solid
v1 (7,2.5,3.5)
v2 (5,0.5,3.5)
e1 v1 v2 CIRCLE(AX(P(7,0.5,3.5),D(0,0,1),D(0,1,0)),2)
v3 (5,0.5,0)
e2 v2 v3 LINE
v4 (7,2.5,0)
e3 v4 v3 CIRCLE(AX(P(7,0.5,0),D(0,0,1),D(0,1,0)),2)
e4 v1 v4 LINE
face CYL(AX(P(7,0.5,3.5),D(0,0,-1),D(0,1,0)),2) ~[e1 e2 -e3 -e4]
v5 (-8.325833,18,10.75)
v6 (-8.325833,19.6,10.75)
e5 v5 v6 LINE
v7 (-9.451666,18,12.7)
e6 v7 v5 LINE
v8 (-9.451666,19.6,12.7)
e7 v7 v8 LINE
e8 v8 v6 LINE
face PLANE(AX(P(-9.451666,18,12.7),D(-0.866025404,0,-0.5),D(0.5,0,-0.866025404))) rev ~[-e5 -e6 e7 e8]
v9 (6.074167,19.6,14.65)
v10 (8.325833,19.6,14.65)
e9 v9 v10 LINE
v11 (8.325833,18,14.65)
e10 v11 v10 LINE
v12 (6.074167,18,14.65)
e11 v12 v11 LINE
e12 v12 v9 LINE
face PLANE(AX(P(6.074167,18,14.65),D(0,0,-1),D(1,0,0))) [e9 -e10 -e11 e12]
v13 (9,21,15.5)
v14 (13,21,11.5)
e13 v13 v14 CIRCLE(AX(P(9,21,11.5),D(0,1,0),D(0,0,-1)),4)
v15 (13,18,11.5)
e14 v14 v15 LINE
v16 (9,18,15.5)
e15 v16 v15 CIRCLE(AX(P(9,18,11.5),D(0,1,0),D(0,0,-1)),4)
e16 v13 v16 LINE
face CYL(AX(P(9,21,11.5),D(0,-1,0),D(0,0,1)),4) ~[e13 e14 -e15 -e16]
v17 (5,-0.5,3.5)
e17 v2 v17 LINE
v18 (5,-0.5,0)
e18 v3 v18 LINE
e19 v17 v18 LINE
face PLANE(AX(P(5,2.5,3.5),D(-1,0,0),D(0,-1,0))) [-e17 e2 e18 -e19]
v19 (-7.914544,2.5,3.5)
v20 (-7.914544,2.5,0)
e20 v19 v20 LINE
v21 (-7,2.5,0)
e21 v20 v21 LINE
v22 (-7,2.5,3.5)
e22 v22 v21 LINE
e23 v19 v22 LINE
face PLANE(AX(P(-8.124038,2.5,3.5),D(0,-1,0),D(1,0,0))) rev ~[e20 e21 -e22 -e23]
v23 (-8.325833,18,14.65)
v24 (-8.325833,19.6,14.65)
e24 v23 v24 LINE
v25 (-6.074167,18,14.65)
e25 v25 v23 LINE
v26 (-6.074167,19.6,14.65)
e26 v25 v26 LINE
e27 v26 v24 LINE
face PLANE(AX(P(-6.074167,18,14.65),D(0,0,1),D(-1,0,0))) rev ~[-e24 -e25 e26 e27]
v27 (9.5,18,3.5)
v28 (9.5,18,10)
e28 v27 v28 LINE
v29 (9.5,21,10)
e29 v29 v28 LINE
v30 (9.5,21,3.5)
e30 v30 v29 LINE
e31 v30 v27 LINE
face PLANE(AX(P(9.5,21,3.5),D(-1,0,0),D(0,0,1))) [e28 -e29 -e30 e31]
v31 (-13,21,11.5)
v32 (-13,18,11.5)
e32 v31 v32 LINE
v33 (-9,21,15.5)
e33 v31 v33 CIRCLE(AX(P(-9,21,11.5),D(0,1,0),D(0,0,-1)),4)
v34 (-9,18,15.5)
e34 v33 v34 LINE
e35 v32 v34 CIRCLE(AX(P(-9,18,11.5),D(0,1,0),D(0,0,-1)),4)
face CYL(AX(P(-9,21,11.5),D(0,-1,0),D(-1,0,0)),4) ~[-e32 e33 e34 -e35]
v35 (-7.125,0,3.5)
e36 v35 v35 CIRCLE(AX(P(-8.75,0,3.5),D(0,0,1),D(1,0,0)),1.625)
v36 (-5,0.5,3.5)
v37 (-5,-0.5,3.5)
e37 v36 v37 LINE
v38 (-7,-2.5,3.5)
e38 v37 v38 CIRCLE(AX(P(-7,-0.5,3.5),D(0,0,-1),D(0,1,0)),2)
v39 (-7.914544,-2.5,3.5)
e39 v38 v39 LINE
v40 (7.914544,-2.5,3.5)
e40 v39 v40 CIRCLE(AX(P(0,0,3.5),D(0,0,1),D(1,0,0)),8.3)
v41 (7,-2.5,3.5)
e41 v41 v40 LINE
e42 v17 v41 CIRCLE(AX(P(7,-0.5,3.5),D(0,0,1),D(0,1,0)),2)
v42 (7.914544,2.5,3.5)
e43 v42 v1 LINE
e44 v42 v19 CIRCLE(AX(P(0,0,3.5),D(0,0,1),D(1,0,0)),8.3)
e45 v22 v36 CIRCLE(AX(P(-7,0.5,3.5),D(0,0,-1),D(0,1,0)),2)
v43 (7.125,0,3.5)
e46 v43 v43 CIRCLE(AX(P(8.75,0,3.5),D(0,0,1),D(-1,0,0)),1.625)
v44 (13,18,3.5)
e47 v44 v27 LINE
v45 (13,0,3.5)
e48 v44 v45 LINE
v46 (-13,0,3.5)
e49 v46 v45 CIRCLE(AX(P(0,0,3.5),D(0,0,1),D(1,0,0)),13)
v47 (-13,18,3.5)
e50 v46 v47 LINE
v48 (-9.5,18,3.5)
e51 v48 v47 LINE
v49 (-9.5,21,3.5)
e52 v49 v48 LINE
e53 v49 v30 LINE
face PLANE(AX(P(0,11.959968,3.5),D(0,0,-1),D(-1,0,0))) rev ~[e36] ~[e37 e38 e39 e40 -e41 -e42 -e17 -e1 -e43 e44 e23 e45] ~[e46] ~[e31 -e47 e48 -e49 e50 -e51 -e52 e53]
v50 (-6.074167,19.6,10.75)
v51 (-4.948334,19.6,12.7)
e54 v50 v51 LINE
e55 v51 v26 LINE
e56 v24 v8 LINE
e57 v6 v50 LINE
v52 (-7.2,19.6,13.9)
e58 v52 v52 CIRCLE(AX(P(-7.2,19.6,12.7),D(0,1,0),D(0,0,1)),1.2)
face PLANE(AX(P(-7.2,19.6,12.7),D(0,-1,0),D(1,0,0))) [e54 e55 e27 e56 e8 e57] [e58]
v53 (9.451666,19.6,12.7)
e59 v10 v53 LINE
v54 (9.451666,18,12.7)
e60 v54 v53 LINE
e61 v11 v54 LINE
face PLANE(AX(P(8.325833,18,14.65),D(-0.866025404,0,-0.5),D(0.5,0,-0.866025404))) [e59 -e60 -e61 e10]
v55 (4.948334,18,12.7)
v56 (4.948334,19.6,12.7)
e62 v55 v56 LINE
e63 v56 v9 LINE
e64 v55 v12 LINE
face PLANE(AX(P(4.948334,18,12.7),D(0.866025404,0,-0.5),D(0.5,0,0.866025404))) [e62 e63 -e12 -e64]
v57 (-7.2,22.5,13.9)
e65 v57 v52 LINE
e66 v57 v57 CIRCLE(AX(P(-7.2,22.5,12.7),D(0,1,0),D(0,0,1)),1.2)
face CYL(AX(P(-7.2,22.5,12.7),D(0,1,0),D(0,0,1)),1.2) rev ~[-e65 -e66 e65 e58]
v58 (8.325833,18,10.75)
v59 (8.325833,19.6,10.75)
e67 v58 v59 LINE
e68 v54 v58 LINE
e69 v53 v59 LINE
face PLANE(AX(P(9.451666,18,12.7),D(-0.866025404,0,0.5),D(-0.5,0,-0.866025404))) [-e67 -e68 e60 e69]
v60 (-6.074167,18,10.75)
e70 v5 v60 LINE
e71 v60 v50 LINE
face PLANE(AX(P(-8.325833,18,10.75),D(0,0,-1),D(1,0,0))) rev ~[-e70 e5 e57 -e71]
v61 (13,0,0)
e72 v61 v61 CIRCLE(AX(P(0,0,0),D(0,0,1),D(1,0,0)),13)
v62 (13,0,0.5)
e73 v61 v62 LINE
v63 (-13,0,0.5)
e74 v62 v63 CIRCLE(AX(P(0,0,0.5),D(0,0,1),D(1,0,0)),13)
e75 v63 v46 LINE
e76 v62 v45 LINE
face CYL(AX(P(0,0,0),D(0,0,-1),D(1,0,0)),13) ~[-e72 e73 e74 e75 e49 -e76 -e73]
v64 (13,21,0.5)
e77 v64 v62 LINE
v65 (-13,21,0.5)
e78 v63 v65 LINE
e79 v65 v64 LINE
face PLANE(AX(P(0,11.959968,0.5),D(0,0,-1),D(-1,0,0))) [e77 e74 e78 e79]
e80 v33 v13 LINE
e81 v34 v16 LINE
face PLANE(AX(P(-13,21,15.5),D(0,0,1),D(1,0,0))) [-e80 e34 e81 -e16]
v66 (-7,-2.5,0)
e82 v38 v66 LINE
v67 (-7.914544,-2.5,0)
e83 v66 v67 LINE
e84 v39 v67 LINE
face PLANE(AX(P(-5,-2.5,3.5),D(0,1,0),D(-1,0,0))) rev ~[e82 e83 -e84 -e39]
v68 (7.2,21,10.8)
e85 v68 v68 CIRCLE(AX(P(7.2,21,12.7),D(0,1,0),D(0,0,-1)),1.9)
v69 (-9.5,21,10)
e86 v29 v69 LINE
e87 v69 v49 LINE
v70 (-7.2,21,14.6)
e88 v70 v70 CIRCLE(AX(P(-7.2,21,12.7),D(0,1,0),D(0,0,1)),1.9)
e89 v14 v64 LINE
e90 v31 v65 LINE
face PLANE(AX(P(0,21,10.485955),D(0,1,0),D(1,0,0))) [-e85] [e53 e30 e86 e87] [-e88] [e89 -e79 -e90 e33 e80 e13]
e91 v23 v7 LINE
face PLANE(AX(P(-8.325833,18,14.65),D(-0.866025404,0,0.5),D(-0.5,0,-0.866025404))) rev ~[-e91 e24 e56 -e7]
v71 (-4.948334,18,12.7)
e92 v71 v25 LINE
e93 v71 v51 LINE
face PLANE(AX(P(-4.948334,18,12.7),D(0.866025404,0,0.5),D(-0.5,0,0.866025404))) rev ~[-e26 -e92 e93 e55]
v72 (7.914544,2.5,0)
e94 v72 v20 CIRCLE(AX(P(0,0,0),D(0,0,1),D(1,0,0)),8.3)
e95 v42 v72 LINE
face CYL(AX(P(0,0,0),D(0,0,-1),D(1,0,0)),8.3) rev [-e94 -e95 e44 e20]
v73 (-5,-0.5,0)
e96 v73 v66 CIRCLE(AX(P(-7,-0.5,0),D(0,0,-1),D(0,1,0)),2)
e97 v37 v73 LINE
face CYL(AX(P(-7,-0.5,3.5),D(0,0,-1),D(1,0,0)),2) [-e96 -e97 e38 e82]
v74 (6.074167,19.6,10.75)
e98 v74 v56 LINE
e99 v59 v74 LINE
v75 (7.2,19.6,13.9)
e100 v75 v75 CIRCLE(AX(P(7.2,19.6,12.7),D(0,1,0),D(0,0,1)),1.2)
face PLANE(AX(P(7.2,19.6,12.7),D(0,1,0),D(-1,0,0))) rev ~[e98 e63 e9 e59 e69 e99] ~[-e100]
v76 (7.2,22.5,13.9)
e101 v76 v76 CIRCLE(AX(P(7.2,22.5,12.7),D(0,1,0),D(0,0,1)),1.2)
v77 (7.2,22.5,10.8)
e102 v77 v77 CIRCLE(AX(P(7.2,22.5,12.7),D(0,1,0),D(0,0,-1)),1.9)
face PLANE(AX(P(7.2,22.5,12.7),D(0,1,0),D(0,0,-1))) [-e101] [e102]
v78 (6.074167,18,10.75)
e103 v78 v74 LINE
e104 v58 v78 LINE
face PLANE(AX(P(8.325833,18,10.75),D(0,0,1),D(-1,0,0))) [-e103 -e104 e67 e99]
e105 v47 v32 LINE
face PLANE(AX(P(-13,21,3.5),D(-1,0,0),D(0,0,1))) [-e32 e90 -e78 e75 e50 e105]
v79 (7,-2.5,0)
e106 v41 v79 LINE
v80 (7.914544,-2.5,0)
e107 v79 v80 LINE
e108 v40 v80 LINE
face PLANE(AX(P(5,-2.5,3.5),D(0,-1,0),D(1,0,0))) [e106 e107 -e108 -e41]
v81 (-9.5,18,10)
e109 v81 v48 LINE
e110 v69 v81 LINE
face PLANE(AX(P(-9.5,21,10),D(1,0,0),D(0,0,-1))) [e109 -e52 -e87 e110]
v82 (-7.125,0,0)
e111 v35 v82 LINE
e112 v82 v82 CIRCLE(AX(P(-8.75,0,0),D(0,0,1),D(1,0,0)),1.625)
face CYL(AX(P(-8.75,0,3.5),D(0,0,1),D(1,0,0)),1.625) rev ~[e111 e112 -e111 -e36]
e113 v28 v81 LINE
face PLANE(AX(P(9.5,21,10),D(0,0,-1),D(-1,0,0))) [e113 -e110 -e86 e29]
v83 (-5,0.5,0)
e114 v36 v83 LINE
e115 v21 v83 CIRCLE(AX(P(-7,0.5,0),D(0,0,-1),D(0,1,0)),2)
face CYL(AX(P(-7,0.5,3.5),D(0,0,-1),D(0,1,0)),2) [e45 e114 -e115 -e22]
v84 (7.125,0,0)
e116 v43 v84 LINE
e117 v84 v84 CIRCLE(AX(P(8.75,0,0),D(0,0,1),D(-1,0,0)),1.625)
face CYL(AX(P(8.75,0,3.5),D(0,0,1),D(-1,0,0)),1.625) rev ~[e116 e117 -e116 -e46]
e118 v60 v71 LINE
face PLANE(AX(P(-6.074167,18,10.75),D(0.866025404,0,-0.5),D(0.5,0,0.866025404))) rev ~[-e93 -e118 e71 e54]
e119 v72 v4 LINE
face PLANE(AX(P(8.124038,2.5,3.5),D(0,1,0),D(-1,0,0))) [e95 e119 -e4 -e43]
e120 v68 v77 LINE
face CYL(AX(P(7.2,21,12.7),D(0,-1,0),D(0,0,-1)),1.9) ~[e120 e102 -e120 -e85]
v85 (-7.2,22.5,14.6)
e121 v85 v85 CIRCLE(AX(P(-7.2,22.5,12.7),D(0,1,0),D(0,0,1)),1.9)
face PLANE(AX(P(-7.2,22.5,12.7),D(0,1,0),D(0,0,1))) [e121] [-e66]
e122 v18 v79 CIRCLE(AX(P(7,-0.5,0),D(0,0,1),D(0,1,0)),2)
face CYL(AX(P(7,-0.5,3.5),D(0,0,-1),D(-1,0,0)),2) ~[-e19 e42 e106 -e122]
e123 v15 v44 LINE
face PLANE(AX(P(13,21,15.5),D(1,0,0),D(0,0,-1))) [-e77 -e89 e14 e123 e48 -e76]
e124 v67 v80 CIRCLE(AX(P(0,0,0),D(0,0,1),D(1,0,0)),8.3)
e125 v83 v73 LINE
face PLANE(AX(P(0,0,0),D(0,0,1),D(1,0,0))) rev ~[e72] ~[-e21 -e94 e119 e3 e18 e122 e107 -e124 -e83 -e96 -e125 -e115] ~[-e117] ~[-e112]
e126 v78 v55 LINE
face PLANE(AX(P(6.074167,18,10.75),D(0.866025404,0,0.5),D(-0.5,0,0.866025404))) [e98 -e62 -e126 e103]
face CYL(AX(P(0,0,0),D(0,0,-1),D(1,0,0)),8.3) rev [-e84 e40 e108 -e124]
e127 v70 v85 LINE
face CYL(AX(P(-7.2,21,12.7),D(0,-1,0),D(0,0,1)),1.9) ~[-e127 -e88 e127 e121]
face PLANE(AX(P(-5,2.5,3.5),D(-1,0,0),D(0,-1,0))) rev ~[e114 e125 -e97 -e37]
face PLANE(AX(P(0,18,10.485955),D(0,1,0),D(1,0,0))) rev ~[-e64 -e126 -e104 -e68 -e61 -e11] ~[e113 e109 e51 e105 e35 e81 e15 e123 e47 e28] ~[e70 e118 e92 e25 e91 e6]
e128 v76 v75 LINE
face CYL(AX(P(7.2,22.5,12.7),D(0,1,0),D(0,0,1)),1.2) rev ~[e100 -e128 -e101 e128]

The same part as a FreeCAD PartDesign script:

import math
import FreeCAD as App
import Part
import Sketcher
from FreeCAD import Vector
Q = App.Units.Quantity


def edges_at(feature, points):
    """Names of the edges that pass closest to the given points."""
    edges = feature.Shape.Edges
    near = lambda p: min(range(len(edges)), key=lambda i: edges[i].distToShape(Part.Vertex(*p))[0])
    return sorted({f"Edge{near(p) + 1}" for p in points})


def add_polygon(sketch, points):
    """Adds a closed chain of lines whose ends are joined by coincident constraints."""
    first, n = sketch.GeometryCount, len(points)
    for a, b in zip(points, points[1:] + points[:1]):
        sketch.addGeometry(Part.LineSegment(App.Vector(*a, 0), App.Vector(*b, 0)), False)
    for i in range(n):
        sketch.addConstraint(Sketcher.Constraint("Coincident", first + i, 2, first + (i + 1) % n, 1))

doc = App.newDocument("Part")
body = doc.addObject("PartDesign::Body", "Body")

# Sketch on XY plane
sketch1 = body.newObject("Sketcher::SketchObject", "Sketch")
sketch1.AttachmentSupport = (doc.getObject("XY_Plane"), [""])
sketch1.MapMode = "FlatFace"
sketch1.addGeometry(Part.Circle(Vector(0, 0, 0), Vector(0, 0, 1), 13), False)
sketch1.addGeometry(Part.Circle(Vector(0, 0, 0), Vector(0, 0, 1), 8.3), False)
sketch1.addConstraint(Sketcher.Constraint("Coincident", 0, 3, -1, 1))
sketch1.addConstraint(Sketcher.Constraint("Coincident", 1, 3, -1, 1))
sketch1.addConstraint(Sketcher.Constraint("Diameter", 0, Q("26 mm")))
sketch1.addConstraint(Sketcher.Constraint("Diameter", 1, Q("16.6 mm")))
pad1 = body.newObject("PartDesign::Pad", "Pad")
pad1.Profile = sketch1
pad1.Length = 3.5

# Sketch on XY plane
sketch2 = body.newObject("Sketcher::SketchObject", "Sketch001")
sketch2.AttachmentSupport = (doc.getObject("XY_Plane"), [""])
sketch2.MapMode = "FlatFace"
sketch2.AttachmentOffset = App.Placement(Vector(0, 0, 3.5), App.Rotation())
sketch2.addGeometry(Part.LineSegment(Vector(-5, 2.5, 0), Vector(-8.124038, 2.5, 0)), False)
sketch2.addGeometry(Part.ArcOfCircle(Part.Circle(Vector(0, 0, 0), Vector(0, 0, 1), 8.5), math.radians(162.895365), math.radians(197.104635)), False)
sketch2.addGeometry(Part.LineSegment(Vector(-8.124038, -2.5, 0), Vector(-5, -2.5, 0)), False)
sketch2.addGeometry(Part.LineSegment(Vector(-5, -2.5, 0), Vector(-5, 2.5, 0)), False)
sketch2.addGeometry(Part.LineSegment(Vector(5, 2.5, 0), Vector(5, -2.5, 0)), False)
sketch2.addGeometry(Part.LineSegment(Vector(5, -2.5, 0), Vector(8.124038, -2.5, 0)), False)
sketch2.addGeometry(Part.ArcOfCircle(Part.Circle(Vector(0, 0, 0), Vector(0, 0, 1), 8.5), math.radians(-17.104635), math.radians(17.104635)), False)
sketch2.addGeometry(Part.LineSegment(Vector(8.124038, 2.5, 0), Vector(5, 2.5, 0)), False)
sketch2.addConstraint(Sketcher.Constraint("Coincident", 0, 2, 1, 1))
sketch2.addConstraint(Sketcher.Constraint("Coincident", 1, 2, 2, 1))
sketch2.addConstraint(Sketcher.Constraint("Coincident", 2, 2, 3, 1))
sketch2.addConstraint(Sketcher.Constraint("Coincident", 3, 2, 0, 1))
sketch2.addConstraint(Sketcher.Constraint("Coincident", 4, 2, 5, 1))
sketch2.addConstraint(Sketcher.Constraint("Coincident", 5, 2, 6, 1))
sketch2.addConstraint(Sketcher.Constraint("Coincident", 6, 2, 7, 1))
sketch2.addConstraint(Sketcher.Constraint("Coincident", 7, 2, 4, 1))
sketch2.addConstraint(Sketcher.Constraint("Horizontal", 0))
sketch2.addConstraint(Sketcher.Constraint("Horizontal", 2))
sketch2.addConstraint(Sketcher.Constraint("Vertical", 3))
sketch2.addConstraint(Sketcher.Constraint("Vertical", 4))
sketch2.addConstraint(Sketcher.Constraint("Horizontal", 5))
sketch2.addConstraint(Sketcher.Constraint("Horizontal", 7))
sketch2.addConstraint(Sketcher.Constraint("Coincident", 1, 3, -1, 1))
sketch2.addConstraint(Sketcher.Constraint("Coincident", 6, 3, -1, 1))
sketch2.addConstraint(Sketcher.Constraint("Equal", 1, 6))
sketch2.addConstraint(Sketcher.Constraint("Symmetric", 3, 2, 4, 2, -1, 1))
sketch2.addConstraint(Sketcher.Constraint("Horizontal", 2, 2, 4, 2))
sketch2.addConstraint(Sketcher.Constraint("Horizontal", 3, 2, 6, 2))
sketch2.addConstraint(Sketcher.Constraint("Radius", 1, Q("8.5 mm")))
sketch2.addConstraint(Sketcher.Constraint("DistanceY", 3, 1, 3, 2, Q("5 mm")))
sketch2.addConstraint(Sketcher.Constraint("DistanceX", 2, 2, -1, 1, Q("5 mm")))
pad2 = body.newObject("PartDesign::Pad", "Pad001")
pad2.Profile = sketch2
pad2.Length = 3.5
pad2.Reversed = True

# Sketch on XY plane
sketch3 = body.newObject("Sketcher::SketchObject", "Sketch002")
sketch3.AttachmentSupport = (doc.getObject("XY_Plane"), [""])
sketch3.MapMode = "FlatFace"
sketch3.AttachmentOffset = App.Placement(Vector(0, 0, 3.5), App.Rotation())
sketch3.addGeometry(Part.Circle(Vector(-8.75, 0, 0), Vector(0, 0, 1), 1.625), False)
sketch3.addGeometry(Part.Circle(Vector(8.75, 0, 0), Vector(0, 0, 1), 1.625), False)
sketch3.addConstraint(Sketcher.Constraint("Equal", 0, 1))
sketch3.addConstraint(Sketcher.Constraint("Symmetric", 0, 3, 1, 3, -1, 1))
sketch3.addConstraint(Sketcher.Constraint("PointOnObject", 0, 3, -1))
sketch3.addConstraint(Sketcher.Constraint("Diameter", 0, Q("3.25 mm")))
sketch3.addConstraint(Sketcher.Constraint("DistanceX", 0, 3, 1, 3, Q("17.5 mm")))
pocket1 = body.newObject("PartDesign::Pocket", "Pocket")
pocket1.Profile = sketch3
pocket1.Type = "ThroughAll"
doc.recompute()

fillet = body.newObject("PartDesign::Fillet", "Fillet")
fillet.Base = (pocket1, edges_at(pocket1, [
    (-5, 2.5, 1.75),
    (-5, -2.5, 1.75),
    (5, -2.5, 1.75),
    (5, 2.5, 1.75),
]))
fillet.Radius = 2

# Sketch on XY plane
sketch4 = body.newObject("Sketcher::SketchObject", "Sketch003")
sketch4.AttachmentSupport = (doc.getObject("XY_Plane"), [""])
sketch4.MapMode = "FlatFace"
sketch4.AttachmentOffset = App.Placement(Vector(0, 0, 0.5), App.Rotation())
sketch4.addGeometry(Part.LineSegment(Vector(-13, 21, 0), Vector(-13, 0, 0)), False)
sketch4.addGeometry(Part.ArcOfCircle(Part.Circle(Vector(0, 0, 0), Vector(0, 0, 1), 13), math.radians(0), math.radians(180)), False)
sketch4.addGeometry(Part.LineSegment(Vector(13, 0, 0), Vector(13, 21, 0)), False)
sketch4.addGeometry(Part.LineSegment(Vector(13, 21, 0), Vector(-13, 21, 0)), False)
sketch4.addConstraint(Sketcher.Constraint("Tangent", 0, 2, 1, 2))
sketch4.addConstraint(Sketcher.Constraint("Tangent", 1, 1, 2, 1))
sketch4.addConstraint(Sketcher.Constraint("Coincident", 2, 2, 3, 1))
sketch4.addConstraint(Sketcher.Constraint("Coincident", 3, 2, 0, 1))
sketch4.addConstraint(Sketcher.Constraint("Vertical", 0))
sketch4.addConstraint(Sketcher.Constraint("Vertical", 2))
sketch4.addConstraint(Sketcher.Constraint("Horizontal", 3))
sketch4.addConstraint(Sketcher.Constraint("Coincident", 1, 3, -1, 1))
sketch4.addConstraint(Sketcher.Constraint("Radius", 1, Q("13 mm")))
sketch4.addConstraint(Sketcher.Constraint("DistanceY", 0, 2, 0, 1, Q("21 mm")))
pad3 = body.newObject("PartDesign::Pad", "Pad002")
pad3.Profile = sketch4
pad3.Length = 3

# Sketch on XZ plane
sketch5 = body.newObject("Sketcher::SketchObject", "Sketch004")
sketch5.AttachmentSupport = (doc.getObject("XZ_Plane"), [""])
sketch5.MapMode = "FlatFace"
sketch5.AttachmentOffset = App.Placement(Vector(0, 0, -21), App.Rotation())
add_polygon(sketch5, [(-13, 3.5), (-13, 15.5), (13, 15.5), (13, 3.5), (9.5, 3.5), (9.5, 10), (-9.5, 10), (-9.5, 3.5)])  # lines 0-7
sketch5.addConstraint(Sketcher.Constraint("Vertical", 0))
sketch5.addConstraint(Sketcher.Constraint("Horizontal", 1))
sketch5.addConstraint(Sketcher.Constraint("Vertical", 2))
sketch5.addConstraint(Sketcher.Constraint("Horizontal", 3))
sketch5.addConstraint(Sketcher.Constraint("Vertical", 4))
sketch5.addConstraint(Sketcher.Constraint("Horizontal", 5))
sketch5.addConstraint(Sketcher.Constraint("Vertical", 6))
sketch5.addConstraint(Sketcher.Constraint("Horizontal", 7))
sketch5.addConstraint(Sketcher.Constraint("Symmetric", 3, 2, 6, 2, -2))
sketch5.addConstraint(Sketcher.Constraint("Equal", 3, 7))
sketch5.addConstraint(Sketcher.Constraint("DistanceX", 1, 1, 1, 2, Q("26 mm")))
sketch5.addConstraint(Sketcher.Constraint("DistanceX", 5, 2, 5, 1, Q("19 mm")))
sketch5.addConstraint(Sketcher.Constraint("DistanceY", 0, 1, 0, 2, Q("12 mm")))
sketch5.addConstraint(Sketcher.Constraint("DistanceY", 4, 1, 4, 2, Q("6.5 mm")))
sketch5.addConstraint(Sketcher.Constraint("DistanceY", -1, 1, 4, 2, Q("10 mm")))
pad4 = body.newObject("PartDesign::Pad", "Pad003")
pad4.Profile = sketch5
pad4.Length = 3

# Sketch on XZ plane
sketch6 = body.newObject("Sketcher::SketchObject", "Sketch005")
sketch6.AttachmentSupport = (doc.getObject("XZ_Plane"), [""])
sketch6.MapMode = "FlatFace"
sketch6.AttachmentOffset = App.Placement(Vector(0, 0, -21), App.Rotation())
sketch6.addGeometry(Part.Circle(Vector(-7.2, 12.7, 0), Vector(0, 0, 1), 1.9), False)
sketch6.addGeometry(Part.Circle(Vector(7.2, 12.7, 0), Vector(0, 0, 1), 1.9), False)
sketch6.addConstraint(Sketcher.Constraint("Equal", 0, 1))
sketch6.addConstraint(Sketcher.Constraint("Symmetric", 0, 3, 1, 3, -2))
sketch6.addConstraint(Sketcher.Constraint("Diameter", 0, Q("3.8 mm")))
sketch6.addConstraint(Sketcher.Constraint("DistanceX", 0, 3, -1, 1, Q("7.2 mm")))
sketch6.addConstraint(Sketcher.Constraint("DistanceY", -1, 1, 0, 3, Q("12.7 mm")))
pad5 = body.newObject("PartDesign::Pad", "Pad004")
pad5.Profile = sketch6
pad5.Length = 1.5
pad5.Reversed = True

# Sketch on XZ plane
sketch7 = body.newObject("Sketcher::SketchObject", "Sketch006")
sketch7.AttachmentSupport = (doc.getObject("XZ_Plane"), [""])
sketch7.MapMode = "FlatFace"
sketch7.AttachmentOffset = App.Placement(Vector(0, 0, -22.5), App.Rotation())
sketch7.addGeometry(Part.Circle(Vector(-7.2, 12.7, 0), Vector(0, 0, 1), 1.2), False)
sketch7.addGeometry(Part.Circle(Vector(7.2, 12.7, 0), Vector(0, 0, 1), 1.2), False)
sketch7.addConstraint(Sketcher.Constraint("Equal", 0, 1))
sketch7.addConstraint(Sketcher.Constraint("Symmetric", 0, 3, 1, 3, -2))
sketch7.addConstraint(Sketcher.Constraint("Diameter", 0, Q("2.4 mm")))
sketch7.addConstraint(Sketcher.Constraint("DistanceX", 0, 3, -1, 1, Q("7.2 mm")))
sketch7.addConstraint(Sketcher.Constraint("DistanceY", -1, 1, 0, 3, Q("12.7 mm")))
pocket2 = body.newObject("PartDesign::Pocket", "Pocket001")
pocket2.Profile = sketch7
pocket2.Type = "ThroughAll"
pocket2.Reversed = True

# Sketch on XZ plane
sketch8 = body.newObject("Sketcher::SketchObject", "Sketch007")
sketch8.AttachmentSupport = (doc.getObject("XZ_Plane"), [""])
sketch8.MapMode = "FlatFace"
sketch8.AttachmentOffset = App.Placement(Vector(0, 0, -18), App.Rotation())
add_polygon(sketch8, [(-4.948334, 12.7), (-6.074167, 14.65), (-8.325833, 14.65), (-9.451666, 12.7), (-8.325833, 10.75), (-6.074167, 10.75)])  # lines 0-5
add_polygon(sketch8, [(4.948334, 12.7), (6.074167, 10.75), (8.325833, 10.75), (9.451666, 12.7), (8.325833, 14.65), (6.074167, 14.65)])  # lines 6-11
sketch8.addConstraint(Sketcher.Constraint("Horizontal", 1))
sketch8.addConstraint(Sketcher.Constraint("Horizontal", 4))
sketch8.addConstraint(Sketcher.Constraint("Horizontal", 7))
sketch8.addConstraint(Sketcher.Constraint("Horizontal", 10))
sketch8.addConstraint(Sketcher.Constraint("Symmetric", 4, 2, 6, 2, -2))
sketch8.addConstraint(Sketcher.Constraint("Symmetric", 2, 2, 8, 2, -2))
sketch8.addConstraint(Sketcher.Constraint("Symmetric", 1, 2, 9, 2, -2))
sketch8.addConstraint(Sketcher.Constraint("Symmetric", 5, 2, 11, 2, -2))
sketch8.addConstraint(Sketcher.Constraint("Parallel", 0, 3))
sketch8.addConstraint(Sketcher.Constraint("Parallel", 2, 5))
sketch8.addConstraint(Sketcher.Constraint("Parallel", 3, 6))
sketch8.addConstraint(Sketcher.Constraint("Parallel", 5, 8))
sketch8.addConstraint(Sketcher.Constraint("Parallel", 8, 11))
sketch8.addConstraint(Sketcher.Constraint("Horizontal", 2, 2, 5, 2))
sketch8.addConstraint(Sketcher.Constraint("Vertical", 1, 2, 3, 2))
sketch8.addConstraint(Sketcher.Constraint("Angle", 0, Q("120 deg")))
sketch8.addConstraint(Sketcher.Constraint("DistanceY", -1, 1, 2, 2, Q("12.7 mm")))
sketch8.addConstraint(Sketcher.Constraint("DistanceY", 3, 2, 1, 2, Q("3.9 mm")))
sketch8.addConstraint(Sketcher.Constraint("DistanceX", 3, 2, 6, 2, Q("14.4 mm")))
sketch8.addConstraint(Sketcher.Constraint("DistanceX", 2, 2, 0, 2, Q("3.377499 mm")))
pocket3 = body.newObject("PartDesign::Pocket", "Pocket002")
pocket3.Profile = sketch8
pocket3.Length = 1.6
doc.recompute()

fillet2 = body.newObject("PartDesign::Fillet", "Fillet001")
fillet2.Base = (pocket3, edges_at(pocket3, [(13, 19.5, 15.5), (-13, 19.5, 15.5)]))
fillet2.Radius = 4

doc.recompute()
